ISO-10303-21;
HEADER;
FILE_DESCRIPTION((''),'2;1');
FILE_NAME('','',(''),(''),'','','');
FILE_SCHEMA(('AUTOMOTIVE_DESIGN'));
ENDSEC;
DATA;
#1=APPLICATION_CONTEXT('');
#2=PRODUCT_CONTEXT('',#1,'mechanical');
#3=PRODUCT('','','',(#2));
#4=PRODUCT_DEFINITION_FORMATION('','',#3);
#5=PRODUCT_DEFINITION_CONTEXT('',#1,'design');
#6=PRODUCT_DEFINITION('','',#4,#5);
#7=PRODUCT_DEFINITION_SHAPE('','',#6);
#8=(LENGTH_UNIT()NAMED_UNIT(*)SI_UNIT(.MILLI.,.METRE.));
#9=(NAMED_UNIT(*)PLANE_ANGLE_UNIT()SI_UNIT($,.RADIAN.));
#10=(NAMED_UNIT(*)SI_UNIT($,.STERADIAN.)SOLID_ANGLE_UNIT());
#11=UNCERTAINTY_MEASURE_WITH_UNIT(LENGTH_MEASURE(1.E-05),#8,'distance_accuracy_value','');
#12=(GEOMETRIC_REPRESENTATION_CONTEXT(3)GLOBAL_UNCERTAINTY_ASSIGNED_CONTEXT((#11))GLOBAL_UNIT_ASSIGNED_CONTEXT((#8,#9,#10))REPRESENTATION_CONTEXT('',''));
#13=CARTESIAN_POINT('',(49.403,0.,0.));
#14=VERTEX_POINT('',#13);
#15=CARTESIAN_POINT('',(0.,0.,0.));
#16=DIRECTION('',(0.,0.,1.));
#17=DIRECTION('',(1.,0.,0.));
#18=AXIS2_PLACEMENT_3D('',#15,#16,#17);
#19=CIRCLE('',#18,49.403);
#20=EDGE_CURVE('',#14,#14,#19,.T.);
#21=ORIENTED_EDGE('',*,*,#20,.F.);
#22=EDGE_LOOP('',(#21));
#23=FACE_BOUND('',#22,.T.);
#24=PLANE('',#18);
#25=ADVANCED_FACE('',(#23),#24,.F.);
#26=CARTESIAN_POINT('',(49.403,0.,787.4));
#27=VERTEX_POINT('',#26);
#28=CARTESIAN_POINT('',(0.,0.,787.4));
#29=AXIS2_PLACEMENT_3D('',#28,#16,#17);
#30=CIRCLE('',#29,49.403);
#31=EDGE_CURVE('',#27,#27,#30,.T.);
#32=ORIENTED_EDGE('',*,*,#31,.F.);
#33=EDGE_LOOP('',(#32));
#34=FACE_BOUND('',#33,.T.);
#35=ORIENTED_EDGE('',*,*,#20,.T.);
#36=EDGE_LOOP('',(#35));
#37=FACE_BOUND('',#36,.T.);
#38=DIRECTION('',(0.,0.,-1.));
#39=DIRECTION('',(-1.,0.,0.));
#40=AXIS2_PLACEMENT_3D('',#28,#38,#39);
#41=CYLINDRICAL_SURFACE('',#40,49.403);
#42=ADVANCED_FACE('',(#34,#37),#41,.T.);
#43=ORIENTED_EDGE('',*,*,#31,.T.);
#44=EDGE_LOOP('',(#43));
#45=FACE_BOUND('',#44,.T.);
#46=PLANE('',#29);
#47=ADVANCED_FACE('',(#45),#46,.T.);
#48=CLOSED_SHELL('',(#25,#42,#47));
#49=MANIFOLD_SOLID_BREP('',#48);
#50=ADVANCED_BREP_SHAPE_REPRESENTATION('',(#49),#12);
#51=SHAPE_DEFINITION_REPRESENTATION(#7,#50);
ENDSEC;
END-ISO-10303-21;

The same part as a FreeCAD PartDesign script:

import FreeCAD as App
import Part
import Sketcher

V = App.Vector
Q = App.Units.Quantity

doc = App.newDocument("Part")
body = doc.addObject("PartDesign::Body", "Body")

# Sketch on XY plane
sketch1 = body.newObject("Sketcher::SketchObject", "Sketch")
sketch1.AttachmentSupport = (doc.getObject("XY_Plane"), [""])
sketch1.MapMode = "FlatFace"
sketch1.addGeometry(Part.Circle(V(0, 0, 0), V(0, 0, 1), 49), False)
sketch1.addConstraint(Sketcher.Constraint("Coincident", 0, 3, -1, 1))
sketch1.addConstraint(Sketcher.Constraint("Diameter", 0, Q("3.89 in")))
pad1 = body.newObject("PartDesign::Pad", "Pad")
pad1.Profile = sketch1
pad1.Length = Q("31 in")

doc.recompute()
